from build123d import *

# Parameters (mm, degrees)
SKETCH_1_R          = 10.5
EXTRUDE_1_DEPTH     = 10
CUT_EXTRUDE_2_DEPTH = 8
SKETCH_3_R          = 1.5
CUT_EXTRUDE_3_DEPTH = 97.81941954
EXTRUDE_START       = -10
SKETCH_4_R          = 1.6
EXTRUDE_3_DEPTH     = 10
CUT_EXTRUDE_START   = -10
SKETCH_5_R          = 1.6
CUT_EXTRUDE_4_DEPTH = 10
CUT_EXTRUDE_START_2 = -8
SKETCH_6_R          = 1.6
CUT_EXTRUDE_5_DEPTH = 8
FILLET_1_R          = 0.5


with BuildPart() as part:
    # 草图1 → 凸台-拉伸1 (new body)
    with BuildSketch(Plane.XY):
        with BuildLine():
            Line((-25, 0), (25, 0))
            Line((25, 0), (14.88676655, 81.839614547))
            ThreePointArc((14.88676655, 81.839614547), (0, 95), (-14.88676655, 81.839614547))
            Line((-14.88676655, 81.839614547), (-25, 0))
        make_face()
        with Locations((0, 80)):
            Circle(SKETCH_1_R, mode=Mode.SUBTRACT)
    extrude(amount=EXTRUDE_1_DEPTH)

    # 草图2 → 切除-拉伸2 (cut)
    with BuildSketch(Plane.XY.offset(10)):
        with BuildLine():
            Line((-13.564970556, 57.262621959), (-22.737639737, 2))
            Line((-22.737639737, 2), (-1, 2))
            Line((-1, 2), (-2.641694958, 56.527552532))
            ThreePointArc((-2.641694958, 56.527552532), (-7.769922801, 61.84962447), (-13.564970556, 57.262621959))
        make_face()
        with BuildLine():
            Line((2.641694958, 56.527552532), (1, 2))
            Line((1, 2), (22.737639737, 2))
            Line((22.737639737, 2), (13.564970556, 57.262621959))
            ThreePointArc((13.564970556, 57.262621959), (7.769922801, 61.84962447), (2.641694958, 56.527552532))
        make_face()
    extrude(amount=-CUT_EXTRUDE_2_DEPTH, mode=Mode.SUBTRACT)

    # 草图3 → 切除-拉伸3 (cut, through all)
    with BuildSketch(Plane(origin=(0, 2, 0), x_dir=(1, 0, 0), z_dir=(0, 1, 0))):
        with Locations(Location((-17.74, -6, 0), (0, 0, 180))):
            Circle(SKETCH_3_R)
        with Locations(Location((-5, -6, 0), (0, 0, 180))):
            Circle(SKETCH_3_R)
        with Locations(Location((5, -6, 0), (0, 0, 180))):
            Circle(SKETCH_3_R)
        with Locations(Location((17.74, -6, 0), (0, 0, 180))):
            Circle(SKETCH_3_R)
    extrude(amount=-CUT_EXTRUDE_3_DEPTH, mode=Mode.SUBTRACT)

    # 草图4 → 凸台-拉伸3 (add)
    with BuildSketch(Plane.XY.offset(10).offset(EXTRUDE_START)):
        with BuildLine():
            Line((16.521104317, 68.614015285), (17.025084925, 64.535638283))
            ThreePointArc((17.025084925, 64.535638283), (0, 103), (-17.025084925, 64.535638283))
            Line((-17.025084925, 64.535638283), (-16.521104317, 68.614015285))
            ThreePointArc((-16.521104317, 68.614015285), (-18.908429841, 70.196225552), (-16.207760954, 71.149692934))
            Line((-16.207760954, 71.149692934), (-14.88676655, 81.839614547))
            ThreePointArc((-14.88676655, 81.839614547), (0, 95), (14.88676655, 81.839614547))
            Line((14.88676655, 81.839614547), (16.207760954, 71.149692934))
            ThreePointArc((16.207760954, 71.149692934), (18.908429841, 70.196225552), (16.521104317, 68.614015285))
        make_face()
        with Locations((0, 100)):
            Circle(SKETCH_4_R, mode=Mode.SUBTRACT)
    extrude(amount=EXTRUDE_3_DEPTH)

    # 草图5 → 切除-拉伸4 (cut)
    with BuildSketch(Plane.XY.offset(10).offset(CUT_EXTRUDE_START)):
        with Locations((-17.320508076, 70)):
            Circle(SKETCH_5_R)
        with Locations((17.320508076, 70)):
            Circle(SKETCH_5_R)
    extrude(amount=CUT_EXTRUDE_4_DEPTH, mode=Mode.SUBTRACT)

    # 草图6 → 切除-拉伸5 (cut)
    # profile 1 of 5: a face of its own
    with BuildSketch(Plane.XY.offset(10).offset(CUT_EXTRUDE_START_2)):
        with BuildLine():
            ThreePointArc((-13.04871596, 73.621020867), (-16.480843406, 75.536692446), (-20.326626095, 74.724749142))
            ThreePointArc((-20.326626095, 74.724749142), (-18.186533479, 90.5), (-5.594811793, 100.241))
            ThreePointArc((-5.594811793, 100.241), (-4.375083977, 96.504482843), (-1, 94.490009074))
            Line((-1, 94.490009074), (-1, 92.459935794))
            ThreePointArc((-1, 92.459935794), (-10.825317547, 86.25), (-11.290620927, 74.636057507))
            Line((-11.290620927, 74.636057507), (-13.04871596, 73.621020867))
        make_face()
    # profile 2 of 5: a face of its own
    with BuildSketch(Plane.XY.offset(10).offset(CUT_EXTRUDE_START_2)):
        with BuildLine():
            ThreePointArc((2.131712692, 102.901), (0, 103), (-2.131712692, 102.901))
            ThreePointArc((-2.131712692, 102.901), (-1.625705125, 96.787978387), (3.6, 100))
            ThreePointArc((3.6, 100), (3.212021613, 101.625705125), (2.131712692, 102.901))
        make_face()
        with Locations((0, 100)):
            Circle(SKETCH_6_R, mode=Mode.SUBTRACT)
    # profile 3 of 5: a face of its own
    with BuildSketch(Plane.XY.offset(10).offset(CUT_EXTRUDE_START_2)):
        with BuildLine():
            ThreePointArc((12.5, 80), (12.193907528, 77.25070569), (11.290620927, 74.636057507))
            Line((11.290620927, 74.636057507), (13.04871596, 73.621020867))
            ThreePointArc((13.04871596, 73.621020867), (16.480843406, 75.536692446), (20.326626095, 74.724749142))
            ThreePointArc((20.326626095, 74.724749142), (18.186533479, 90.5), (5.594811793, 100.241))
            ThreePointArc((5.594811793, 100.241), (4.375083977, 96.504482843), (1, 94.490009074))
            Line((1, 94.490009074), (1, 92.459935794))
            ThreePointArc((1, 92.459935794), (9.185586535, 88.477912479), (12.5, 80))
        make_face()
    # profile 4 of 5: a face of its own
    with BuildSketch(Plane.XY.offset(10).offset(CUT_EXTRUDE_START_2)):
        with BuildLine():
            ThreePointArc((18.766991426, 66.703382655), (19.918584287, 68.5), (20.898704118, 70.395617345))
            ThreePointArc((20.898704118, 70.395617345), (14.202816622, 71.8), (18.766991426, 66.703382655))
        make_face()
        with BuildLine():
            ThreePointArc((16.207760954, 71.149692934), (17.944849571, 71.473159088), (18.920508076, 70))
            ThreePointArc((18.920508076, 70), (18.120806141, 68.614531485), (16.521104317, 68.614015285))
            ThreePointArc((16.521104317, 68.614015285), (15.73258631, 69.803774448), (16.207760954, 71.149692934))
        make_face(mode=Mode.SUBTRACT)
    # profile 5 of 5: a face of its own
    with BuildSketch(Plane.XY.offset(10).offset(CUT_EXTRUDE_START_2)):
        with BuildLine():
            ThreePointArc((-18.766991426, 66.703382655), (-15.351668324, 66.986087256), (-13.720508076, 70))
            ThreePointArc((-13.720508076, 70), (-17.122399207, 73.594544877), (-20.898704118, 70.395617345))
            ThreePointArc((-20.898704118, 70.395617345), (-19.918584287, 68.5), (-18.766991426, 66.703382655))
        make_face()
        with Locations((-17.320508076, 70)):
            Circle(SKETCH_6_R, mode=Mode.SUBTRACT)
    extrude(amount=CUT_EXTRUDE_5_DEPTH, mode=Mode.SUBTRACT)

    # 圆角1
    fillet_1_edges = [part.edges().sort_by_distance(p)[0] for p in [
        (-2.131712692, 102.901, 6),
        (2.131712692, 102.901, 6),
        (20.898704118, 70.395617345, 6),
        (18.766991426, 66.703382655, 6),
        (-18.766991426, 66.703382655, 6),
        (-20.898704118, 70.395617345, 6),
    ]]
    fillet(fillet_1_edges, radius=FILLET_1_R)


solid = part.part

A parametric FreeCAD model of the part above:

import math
import FreeCAD as App
import Part
import Sketcher
from FreeCAD import Vector
Q = App.Units.Quantity


def edges_at(feature, points):
    """Names of the edges that pass closest to the given points."""
    edges = feature.Shape.Edges
    near = lambda p: min(range(len(edges)), key=lambda i: edges[i].distToShape(Part.Vertex(*p))[0])
    return sorted({f"Edge{near(p) + 1}" for p in points})

doc = App.newDocument("Part")
params = doc.addObject("Spreadsheet::Sheet", "Params")
for row, (alias, value) in enumerate([
    ("sketch1_diameter", "21 mm"),
    ("sketch1_radius", "15 mm"),
    ("sketch1_width", "50 mm"),
    ("pad1_length", "10 mm"),
    ("sketch2_radius", "5.5 mm"),
    ("pocket1_length", "8 mm"),
    ("sketch3_diameter", "3 mm"),
    ("sketch4_radius", "23 mm"),
    ("sketch4_radius2", "15 mm"),
    ("sketch4_diameter", "3.2 mm"),
    ("pad2_length", "10 mm"),
    ("sketch5_diameter", "3.2 mm"),
    ("pocket3_length", "10 mm"),
    ("sketch6_radius", "21 mm"),
    ("sketch6_radius2", "23 mm"),
    ("sketch6_diameter", "3.2 mm"),
    ("sketch6_radius3", "5.6 mm"),
    ("sketch6_radius4", "12.5 mm"),
    ("pocket4_length", "8 mm"),
    ("fillet_radius", "0.5 mm"),
], start=1):
    params.set(f"A{row}", alias)
    params.set(f"B{row}", "=" + value)
    params.setAlias(f"B{row}", alias)

body = doc.addObject("PartDesign::Body", "Body")

# Sketch on XY plane
sketch1 = body.newObject("Sketcher::SketchObject", "Sketch")
sketch1.AttachmentSupport = (doc.getObject("XY_Plane"), [""])
sketch1.MapMode = "FlatFace"
sketch1.addGeometry([
    Part.LineSegment(Vector(-25, 0, 0), Vector(25, 0, 0)),  # 0
    Part.LineSegment(Vector(25, 0, 0), Vector(14.886767, 81.839615, 0)),  # 1
    Part.ArcOfCircle(Part.Circle(Vector(0, 80, 0), Vector(0, 0, 1), 15), math.radians(7.044545), math.radians(172.955455)),  # 2
    Part.LineSegment(Vector(-14.886767, 81.839615, 0), Vector(-25, 0, 0)),  # 3
    Part.Circle(Vector(0, 80, 0), Vector(0, 0, 1), 10.5),  # 4
], False)
sketch1.addConstraint([
    Sketcher.Constraint("Coincident", 0, 2, 1, 1),
    Sketcher.Constraint("Tangent", 1, 2, 2, 1),
    Sketcher.Constraint("Tangent", 2, 2, 3, 1),
    Sketcher.Constraint("Coincident", 3, 2, 0, 1),
    Sketcher.Constraint("Horizontal", 0),
    Sketcher.Constraint("Coincident", 4, 3, 2, 3),
    Sketcher.Constraint("Symmetric", 0, 2, 3, 2, -1, 1),
    Sketcher.Constraint("PointOnObject", 2, 3, -2),
    Sketcher.Constraint("Diameter", 4, Q("21 mm")),
    Sketcher.Constraint("Radius", 2, Q("15 mm")),
    Sketcher.Constraint("DistanceX", 0, 1, 0, 2, Q("50 mm")),
    Sketcher.Constraint("DistanceY", -1, 1, 2, 3, Q("80 mm")),
])
sketch1.setExpression("Constraints[8]", "Params.sketch1_diameter")
sketch1.setExpression("Constraints[9]", "Params.sketch1_radius")
sketch1.setExpression("Constraints[10]", "Params.sketch1_width")
pad1 = body.newObject("PartDesign::Pad", "Pad")
pad1.Profile = sketch1
pad1.setExpression("Length", "Params.pad1_length")

# Sketch on XY plane
sketch2 = body.newObject("Sketcher::SketchObject", "Sketch001")
sketch2.AttachmentSupport = (doc.getObject("XY_Plane"), [""])
sketch2.MapMode = "FlatFace"
sketch2.AttachmentOffset = App.Placement(Vector(0, 0, 10), App.Rotation())
sketch2.addGeometry([
    Part.LineSegment(Vector(-13.564971, 57.262622, 0), Vector(-22.73764, 2, 0)),  # 0
    Part.LineSegment(Vector(-22.73764, 2, 0), Vector(-1, 2, 0)),  # 1
    Part.LineSegment(Vector(-1, 2, 0), Vector(-2.641695, 56.527553, 0)),  # 2
    Part.ArcOfCircle(Part.Circle(Vector(-8.139204, 56.362036, 0), Vector(0, 0, 1), 5.5), math.radians(1.724519), math.radians(170.575781)),  # 3
    Part.LineSegment(Vector(2.641695, 56.527553, 0), Vector(1, 2, 0)),  # 4
    Part.LineSegment(Vector(1, 2, 0), Vector(22.73764, 2, 0)),  # 5
    Part.LineSegment(Vector(22.73764, 2, 0), Vector(13.564971, 57.262622, 0)),  # 6
    Part.ArcOfCircle(Part.Circle(Vector(8.139204, 56.362036, 0), Vector(0, 0, 1), 5.5), math.radians(9.424219), math.radians(178.275481)),  # 7
], False)
sketch2.addConstraint([
    Sketcher.Constraint("Coincident", 0, 2, 1, 1),
    Sketcher.Constraint("Coincident", 1, 2, 2, 1),
    Sketcher.Constraint("Tangent", 2, 2, 3, 1),
    Sketcher.Constraint("Tangent", 3, 2, 0, 1),
    Sketcher.Constraint("Coincident", 4, 2, 5, 1),
    Sketcher.Constraint("Coincident", 5, 2, 6, 1),
    Sketcher.Constraint("Tangent", 6, 2, 7, 1),
    Sketcher.Constraint("Tangent", 7, 2, 4, 1),
    Sketcher.Constraint("Horizontal", 1),
    Sketcher.Constraint("Horizontal", 5),
    Sketcher.Constraint("Equal", 3, 7),
    Sketcher.Constraint("Symmetric", 3, 3, 7, 3, -2),
    Sketcher.Constraint("Symmetric", 1, 2, 4, 2, -2),
    Sketcher.Constraint("Horizontal", 3, 2, 6, 2),
    Sketcher.Constraint("Radius", 3, Q("5.5 mm")),
    Sketcher.Constraint("DistanceY", -1, 1, 0, 2, Q("2 mm")),
    Sketcher.Constraint("DistanceX", 1, 2, -1, 1, Q("1 mm")),
    Sketcher.Constraint("DistanceX", 1, 1, 1, 2, Q("21.73764 mm")),
    Sketcher.Constraint("DistanceX", 2, 2, 7, 3, Q("10.780899 mm")),
    Sketcher.Constraint("Distance", 2, Q("54.552261 mm")),
])
sketch2.setExpression("Constraints[14]", "Params.sketch2_radius")
pocket1 = body.newObject("PartDesign::Pocket", "Pocket")
pocket1.Profile = sketch2
pocket1.setExpression("Length", "Params.pocket1_length")

# Sketch on XZ plane
sketch3 = body.newObject("Sketcher::SketchObject", "Sketch002")
sketch3.AttachmentSupport = (doc.getObject("XZ_Plane"), [""])
sketch3.MapMode = "FlatFace"
sketch3.AttachmentOffset = App.Placement(Vector(0, 0, -2), App.Rotation())
sketch3.addGeometry([
    Part.Circle(Vector(-17.74, 6, 0), Vector(0, 0, 1), 1.5),
    Part.Circle(Vector(-5, 6, 0), Vector(0, 0, 1), 1.5),
    Part.Circle(Vector(5, 6, 0), Vector(0, 0, 1), 1.5),
    Part.Circle(Vector(17.74, 6, 0), Vector(0, 0, 1), 1.5),
], False)
sketch3.addConstraint([
    Sketcher.Constraint("Equal", 0, 1),
    Sketcher.Constraint("Equal", 1, 2),
    Sketcher.Constraint("Equal", 2, 3),
    Sketcher.Constraint("Symmetric", 1, 3, 2, 3, -2),
    Sketcher.Constraint("Symmetric", 0, 3, 3, 3, -2),
    Sketcher.Constraint("Horizontal", 0, 3, 1, 3),
    Sketcher.Constraint("Diameter", 0, Q("3 mm")),
    Sketcher.Constraint("DistanceY", -1, 1, 0, 3, Q("6 mm")),
    Sketcher.Constraint("DistanceX", 1, 3, -1, 1, Q("5 mm")),
    Sketcher.Constraint("DistanceX", 0, 3, -1, 1, Q("17.74 mm")),
])
sketch3.setExpression("Constraints[6]", "Params.sketch3_diameter")
pocket2 = body.newObject("PartDesign::Pocket", "Pocket001")
pocket2.Profile = sketch3
pocket2.Type = "ThroughAll"
pocket2.Reversed = True

# Sketch on XY plane
sketch4 = body.newObject("Sketcher::SketchObject", "Sketch003")
sketch4.AttachmentSupport = (doc.getObject("XY_Plane"), [""])
sketch4.MapMode = "FlatFace"
sketch4.addGeometry([
    Part.LineSegment(Vector(16.521104, 68.614015, 0), Vector(17.025085, 64.535638, 0)),  # 0
    Part.ArcOfCircle(Part.Circle(Vector(0, 80, 0), Vector(0, 0, 1), 23), math.radians(-42.249748), math.radians(222.249748)),  # 1
    Part.LineSegment(Vector(-17.025085, 64.535638, 0), Vector(-16.521104, 68.614015, 0)),  # 2
    Part.ArcOfCircle(Part.Circle(Vector(-17.320508, 70, 0), Vector(0, 0, 1), 1.6), math.radians(45.935561), math.radians(299.975349)),  # 3
    Part.LineSegment(Vector(-16.207761, 71.149693, 0), Vector(-14.886767, 81.839615, 0)),  # 4
    Part.ArcOfCircle(Part.Circle(Vector(0, 80, 0), Vector(0, 0, 1), 15), math.radians(7.044545), math.radians(172.955455)),  # 5
    Part.LineSegment(Vector(14.886767, 81.839615, 0), Vector(16.207761, 71.149693, 0)),  # 6
    Part.ArcOfCircle(Part.Circle(Vector(17.320508, 70, 0), Vector(0, 0, 1), 1.6), math.radians(-119.975349), math.radians(134.064439)),  # 7
    Part.Circle(Vector(0, 100, 0), Vector(0, 0, 1), 1.6),  # 8
], False)
sketch4.addConstraint([
    Sketcher.Constraint("Coincident", 0, 2, 1, 1),
    Sketcher.Constraint("Coincident", 1, 2, 2, 1),
    Sketcher.Constraint("Coincident", 2, 2, 3, 2),
    Sketcher.Constraint("Coincident", 3, 1, 4, 1),
    Sketcher.Constraint("Tangent", 4, 2, 5, 2),
    Sketcher.Constraint("Tangent", 5, 1, 6, 1),
    Sketcher.Constraint("Coincident", 6, 2, 7, 2),
    Sketcher.Constraint("Coincident", 7, 1, 0, 1),
    Sketcher.Constraint("Coincident", 5, 3, 1, 3),
    Sketcher.Constraint("Equal", 3, 7),
    Sketcher.Constraint("Equal", 7, 8),
    Sketcher.Constraint("Symmetric", 3, 3, 7, 3, -2),
    Sketcher.Constraint("Symmetric", 0, 2, 1, 2, -2),
    Sketcher.Constraint("PointOnObject", 8, 3, -2),
    Sketcher.Constraint("Parallel", 2, 4),
    Sketcher.Constraint("Parallel", 0, 6),
    Sketcher.Constraint("Horizontal", 4, 2, 5, 1),
    Sketcher.Constraint("Radius", 1, Q("23 mm")),
    Sketcher.Constraint("Radius", 5, Q("15 mm")),
    Sketcher.Constraint("Diameter", 8, Q("3.2 mm")),
    Sketcher.Constraint("DistanceY", -1, 1, 1, 3, Q("80 mm")),
    Sketcher.Constraint("DistanceY", -1, 1, 3, 3, Q("70 mm")),
    Sketcher.Constraint("DistanceY", -1, 1, 8, 3, Q("100 mm")),
    Sketcher.Constraint("Distance", 0, Q("4.109398 mm")),
    Sketcher.Constraint("DistanceY", 2, 2, 4, 2, Q("13.225599 mm")),
    Sketcher.Constraint("DistanceX", 3, 3, -1, 1, Q("17.320508 mm")),
])
sketch4.setExpression("Constraints[17]", "Params.sketch4_radius")
sketch4.setExpression("Constraints[18]", "Params.sketch4_radius2")
sketch4.setExpression("Constraints[19]", "Params.sketch4_diameter")
pad2 = body.newObject("PartDesign::Pad", "Pad001")
pad2.Profile = sketch4
pad2.setExpression("Length", "Params.pad2_length")

# Sketch on XY plane
sketch5 = body.newObject("Sketcher::SketchObject", "Sketch004")
sketch5.AttachmentSupport = (doc.getObject("XY_Plane"), [""])
sketch5.MapMode = "FlatFace"
sketch5.addGeometry([
    Part.Circle(Vector(-17.320508, 70, 0), Vector(0, 0, 1), 1.6),
    Part.Circle(Vector(17.320508, 70, 0), Vector(0, 0, 1), 1.6),
], False)
sketch5.addConstraint([
    Sketcher.Constraint("Equal", 0, 1),
    Sketcher.Constraint("Symmetric", 0, 3, 1, 3, -2),
    Sketcher.Constraint("Diameter", 0, Q("3.2 mm")),
    Sketcher.Constraint("DistanceY", -1, 1, 0, 3, Q("70 mm")),
    Sketcher.Constraint("DistanceX", 0, 3, -1, 1, Q("17.320508 mm")),
])
sketch5.setExpression("Constraints[2]", "Params.sketch5_diameter")
pocket3 = body.newObject("PartDesign::Pocket", "Pocket002")
pocket3.Profile = sketch5
pocket3.setExpression("Length", "Params.pocket3_length")
pocket3.Reversed = True

# Sketch on XY plane
sketch6 = body.newObject("Sketcher::SketchObject", "Sketch005")
sketch6.AttachmentSupport = (doc.getObject("XY_Plane"), [""])
sketch6.MapMode = "FlatFace"
sketch6.AttachmentOffset = App.Placement(Vector(0, 0, 2), App.Rotation())
sketch6.addGeometry([
    Part.ArcOfCircle(Part.Circle(Vector(-17.320508, 70, 0), Vector(0, 0, 1), 5.6), math.radians(40.286561), math.radians(122.466527)),  # 0
    Part.LineSegment(Vector(-13.048716, 73.621021, 0), Vector(-11.290621, 74.636058, 0)),  # 1
    Part.ArcOfCircle(Part.Circle(Vector(0, 80, 0), Vector(0, 0, 1), 12.5), math.radians(94.588566), math.radians(205.411434)),  # 2
    Part.LineSegment(Vector(-1, 92.459936, 0), Vector(-1, 94.490009, 0)),  # 3
    Part.ArcOfCircle(Part.Circle(Vector(0, 100, 0), Vector(0, 0, 1), 5.6), math.radians(177.533473), math.radians(259.713439)),  # 4
    Part.ArcOfCircle(Part.Circle(Vector(0, 80, 0), Vector(0, 0, 1), 21), math.radians(105.451323), math.radians(194.548677)),  # 5
    Part.ArcOfCircle(Part.Circle(Vector(0, 80, 0), Vector(0, 0, 1), 23), math.radians(84.682014), math.radians(95.317986)),  # 6
    Part.ArcOfCircle(Part.Circle(Vector(0, 100, 0), Vector(0, 0, 1), 3.6), math.radians(126.309188), math.radians(360)),  # 7
    Part.ArcOfCircle(Part.Circle(Vector(0, 100, 0), Vector(0, 0, 1), 3.6), math.radians(0), math.radians(53.690812)),  # 8
    Part.Circle(Vector(0, 100, 0), Vector(0, 0, 1), 1.6),  # 9
    Part.ArcOfCircle(Part.Circle(Vector(0, 80, 0), Vector(0, 0, 1), 12.5), math.radians(-25.411434), math.radians(0)),  # 10
    Part.LineSegment(Vector(11.290621, 74.636058, 0), Vector(13.048716, 73.621021, 0)),  # 11
    Part.ArcOfCircle(Part.Circle(Vector(17.320508, 70, 0), Vector(0, 0, 1), 5.6), math.radians(57.533473), math.radians(139.713439)),  # 12
    Part.ArcOfCircle(Part.Circle(Vector(0, 80, 0), Vector(0, 0, 1), 21), math.radians(-14.548677), math.radians(74.548677)),  # 13
    Part.ArcOfCircle(Part.Circle(Vector(0, 100, 0), Vector(0, 0, 1), 5.6), math.radians(-79.713439), math.radians(2.466527)),  # 14
    Part.LineSegment(Vector(1, 94.490009, 0), Vector(1, 92.459936, 0)),  # 15
    Part.ArcOfCircle(Part.Circle(Vector(0, 80, 0), Vector(0, 0, 1), 12.5), math.radians(0), math.radians(85.411434)),  # 16
    Part.ArcOfCircle(Part.Circle(Vector(0, 80, 0), Vector(0, 0, 1), 23), math.radians(-35.317986), math.radians(-24.682014)),  # 17
    Part.ArcOfCircle(Part.Circle(Vector(17.320508, 70, 0), Vector(0, 0, 1), 3.6), math.radians(6.309188), math.radians(293.690812)),  # 18
    Part.ArcOfCircle(Part.Circle(Vector(17.320508, 70, 0), Vector(0, 0, 1), 1.6), math.radians(134.064439), math.radians(240.024651)),  # 19
    Part.ArcOfCircle(Part.Circle(Vector(17.320508, 70, 0), Vector(0, 0, 1), 1.6), math.radians(0), math.radians(134.064439)),  # 20
    Part.ArcOfCircle(Part.Circle(Vector(17.320508, 70, 0), Vector(0, 0, 1), 1.6), math.radians(-119.975349), math.radians(0)),  # 21
    Part.ArcOfCircle(Part.Circle(Vector(-17.320508, 70, 0), Vector(0, 0, 1), 3.6), math.radians(-113.690812), math.radians(0)),  # 22
    Part.ArcOfCircle(Part.Circle(Vector(-17.320508, 70, 0), Vector(0, 0, 1), 3.6), math.radians(0), math.radians(173.690812)),  # 23
    Part.ArcOfCircle(Part.Circle(Vector(0, 80, 0), Vector(0, 0, 1), 23), math.radians(-155.317986), math.radians(-144.682014)),  # 24
    Part.Circle(Vector(-17.320508, 70, 0), Vector(0, 0, 1), 1.6),  # 25
], False)
sketch6.addConstraint([
    Sketcher.Constraint("Coincident", 0, 1, 1, 1),
    Sketcher.Constraint("Coincident", 1, 2, 2, 2),
    Sketcher.Constraint("Coincident", 2, 1, 3, 1),
    Sketcher.Constraint("Coincident", 3, 2, 4, 2),
    Sketcher.Constraint("Coincident", 4, 1, 5, 1),
    Sketcher.Constraint("Coincident", 5, 2, 0, 2),
    Sketcher.Constraint("Coincident", 6, 2, 7, 1),
    Sketcher.Constraint("Tangent", 7, 2, 8, 1),
    Sketcher.Constraint("Coincident", 8, 2, 6, 1),
    Sketcher.Constraint("Coincident", 10, 1, 11, 1),
    Sketcher.Constraint("Coincident", 11, 2, 12, 2),
    Sketcher.Constraint("Coincident", 12, 1, 13, 1),
    Sketcher.Constraint("Coincident", 13, 2, 14, 2),
    Sketcher.Constraint("Coincident", 14, 1, 15, 1),
    Sketcher.Constraint("Coincident", 15, 2, 16, 2),
    Sketcher.Constraint("Tangent", 16, 1, 10, 2),
    Sketcher.Constraint("Coincident", 17, 1, 18, 2),
    Sketcher.Constraint("Coincident", 18, 1, 17, 2),
    Sketcher.Constraint("Tangent", 19, 1, 20, 2),
    Sketcher.Constraint("Tangent", 20, 1, 21, 2),
    Sketcher.Constraint("Tangent", 21, 1, 19, 2),
    Sketcher.Constraint("Tangent", 22, 2, 23, 1),
    Sketcher.Constraint("Coincident", 23, 2, 24, 1),
    Sketcher.Constraint("Coincident", 24, 2, 22, 1),
    Sketcher.Constraint("Vertical", 3),
    Sketcher.Constraint("Vertical", 15),
    Sketcher.Constraint("Coincident", 5, 3, 2, 3),
    Sketcher.Constraint("Coincident", 6, 3, 2, 3),
    Sketcher.Constraint("Coincident", 7, 3, 4, 3),
    Sketcher.Constraint("Coincident", 9, 3, 4, 3),
    Sketcher.Constraint("Coincident", 10, 3, 2, 3),
    Sketcher.Constraint("Coincident", 13, 3, 2, 3),
    Sketcher.Constraint("Coincident", 14, 3, 4, 3),
    Sketcher.Constraint("Coincident", 17, 3, 2, 3),
    Sketcher.Constraint("Coincident", 18, 3, 12, 3),
    Sketcher.Constraint("Coincident", 19, 3, 12, 3),
    Sketcher.Constraint("Coincident", 22, 3, 0, 3),
    Sketcher.Constraint("Coincident", 24, 3, 2, 3),
    Sketcher.Constraint("Coincident", 25, 3, 0, 3),
    Sketcher.Constraint("Equal", 0, 4),
    Sketcher.Constraint("Equal", 7, 8),
    Sketcher.Constraint("Equal", 2, 10),
    Sketcher.Constraint("Equal", 4, 12),
    Sketcher.Constraint("Equal", 5, 13),
    Sketcher.Constraint("Equal", 12, 14),
    Sketcher.Constraint("Equal", 10, 16),
    Sketcher.Constraint("Equal", 6, 17),
    Sketcher.Constraint("Equal", 8, 18),
    Sketcher.Constraint("Equal", 9, 19),
    Sketcher.Constraint("Equal", 18, 22),
    Sketcher.Constraint("Equal", 22, 23),
    Sketcher.Constraint("Equal", 17, 24),
    Sketcher.Constraint("Equal", 21, 25),
    Sketcher.Constraint("Symmetric", 0, 3, 12, 3, -2),
    Sketcher.Constraint("Symmetric", 6, 2, 8, 2, -2),
    Sketcher.Constraint("Horizontal", 14, 3, 7, 2),
    Sketcher.Constraint("Horizontal", 1, 2, 10, 1),
    Sketcher.Constraint("Horizontal", 0, 1, 11, 2),
    Sketcher.Constraint("Horizontal", 3, 2, 14, 1),
    Sketcher.Constraint("Horizontal", 24, 3, 16, 1),
    Sketcher.Constraint("Horizontal", 25, 3, 20, 1),
    Sketcher.Constraint("Horizontal", 20, 1, 22, 2),
    Sketcher.Constraint("Radius", 5, Q("21 mm")),
    Sketcher.Constraint("Radius", 6, Q("23 mm")),
    Sketcher.Constraint("Diameter", 9, Q("3.2 mm")),
    Sketcher.Constraint("Radius", 0, Q("5.6 mm")),
    Sketcher.Constraint("Radius", 2, Q("12.5 mm")),
    Sketcher.Constraint("Radius", 7, Q("3.6 mm")),
    Sketcher.Constraint("Angle", 1, Q("30 deg")),
    Sketcher.Constraint("DistanceY", -1, 1, 0, 3, Q("70 mm")),
    Sketcher.Constraint("DistanceY", -1, 1, 2, 3, Q("80 mm")),
    Sketcher.Constraint("DistanceY", -1, 1, 4, 3, Q("100 mm")),
    Sketcher.Constraint("DistanceX", 2, 1, -1, 1, Q("1 mm")),
    Sketcher.Constraint("DistanceX", 0, 3, -1, 1, Q("17.320508 mm")),
    Sketcher.Constraint("DistanceY", -1, 1, 0, 1, Q("73.621021 mm")),
    Sketcher.Constraint("DistanceX", -1, 1, 19, 1, Q("16.207761 mm")),
    Sketcher.Constraint("DistanceX", -1, 1, 21, 1, Q("16.521104 mm")),
])
sketch6.setExpression("Constraints[62]", "Params.sketch6_radius")
sketch6.setExpression("Constraints[63]", "Params.sketch6_radius2")
sketch6.setExpression("Constraints[64]", "Params.sketch6_diameter")
sketch6.setExpression("Constraints[65]", "Params.sketch6_radius3")
sketch6.setExpression("Constraints[66]", "Params.sketch6_radius4")
pocket4 = body.newObject("PartDesign::Pocket", "Pocket003")
pocket4.Profile = sketch6
pocket4.setExpression("Length", "Params.pocket4_length")
pocket4.Reversed = True
doc.recompute()

fillet = body.newObject("PartDesign::Fillet", "Fillet")
fillet.Base = (pocket4, edges_at(pocket4, [
    (-2.132, 102.901, 6),
    (2.132, 102.901, 6),
    (20.899, 70.396, 6),
    (18.767, 66.703, 6),
    (-18.767, 66.703, 6),
    (-20.899, 70.396, 6),
]))
fillet.setExpression("Radius", "Params.fillet_radius")

doc.recompute()
